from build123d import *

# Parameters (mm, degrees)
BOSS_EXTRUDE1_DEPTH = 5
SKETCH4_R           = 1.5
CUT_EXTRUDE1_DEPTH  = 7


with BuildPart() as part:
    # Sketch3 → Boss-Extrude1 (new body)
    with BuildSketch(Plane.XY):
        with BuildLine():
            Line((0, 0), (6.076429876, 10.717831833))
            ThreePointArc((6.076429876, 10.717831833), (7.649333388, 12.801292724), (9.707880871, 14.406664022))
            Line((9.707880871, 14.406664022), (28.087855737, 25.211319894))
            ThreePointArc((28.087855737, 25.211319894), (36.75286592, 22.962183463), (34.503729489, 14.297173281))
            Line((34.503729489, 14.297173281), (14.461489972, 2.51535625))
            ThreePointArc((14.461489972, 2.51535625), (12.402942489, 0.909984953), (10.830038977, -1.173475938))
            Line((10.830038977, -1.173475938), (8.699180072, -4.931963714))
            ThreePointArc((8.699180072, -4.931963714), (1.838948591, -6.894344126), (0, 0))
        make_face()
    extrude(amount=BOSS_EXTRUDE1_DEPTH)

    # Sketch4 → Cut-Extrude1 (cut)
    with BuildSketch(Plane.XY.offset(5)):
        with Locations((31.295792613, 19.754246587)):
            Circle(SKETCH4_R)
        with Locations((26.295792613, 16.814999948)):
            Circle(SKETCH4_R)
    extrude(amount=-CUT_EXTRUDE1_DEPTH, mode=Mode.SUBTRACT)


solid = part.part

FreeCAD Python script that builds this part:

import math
import FreeCAD as App
import Part
import Sketcher

doc = App.newDocument("Part")
params = doc.addObject("Spreadsheet::Sheet", "Params")
for row, (alias, value) in enumerate([
    ("sketch1_radius", "10 mm"),
    ("pad1_length", "5 mm"),
    ("sketch2_diameter", "3 mm"),
    ("pocket1_length", "7 mm"),
], start=1):
    params.set(f"A{row}", alias)
    params.set(f"B{row}", "=" + value)
    params.setAlias(f"B{row}", alias)

body = doc.addObject("PartDesign::Body", "Body")

# Sketch on XY plane
sketch1 = body.newObject("Sketcher::SketchObject", "Sketch")
sketch1.AttachmentSupport = (doc.getObject("XY_Plane"), [""])
sketch1.MapMode = "FlatFace"
sketch1.addGeometry(Part.LineSegment(App.Vector(6.1, 10.7, 0), App.Vector(0, 0, 0)), False)
sketch1.addGeometry(Part.ArcOfCircle(Part.Circle(App.Vector(4.3, -2.5, 0), App.Vector(0, 0, 1), 5), math.radians(149), math.radians(331)), False)
sketch1.addGeometry(Part.LineSegment(App.Vector(8.7, -4.9, 0), App.Vector(10.8, -1.2, 0)), False)
sketch1.addGeometry(Part.ArcOfCircle(Part.Circle(App.Vector(19.5, -6.1, 0), App.Vector(0, 0, 1), 10), math.radians(120), math.radians(150)), False)
sketch1.addGeometry(Part.LineSegment(App.Vector(14.5, 2.5, 0), App.Vector(34.5, 14.3, 0)), False)
sketch1.addGeometry(Part.ArcOfCircle(Part.Circle(App.Vector(31.3, 19.8, 0), App.Vector(0, 0, 1), 6.3), math.radians(-60), math.radians(120)), False)
sketch1.addGeometry(Part.LineSegment(App.Vector(28.1, 25.2, 0), App.Vector(9.7, 14.4, 0)), False)
sketch1.addGeometry(Part.ArcOfCircle(Part.Circle(App.Vector(14.8, 5.8, 0), App.Vector(0, 0, 1), 10), math.radians(120), math.radians(150)), False)
sketch1.addConstraint(Sketcher.Constraint("Coincident", 0, 2, 1, 1))
sketch1.addConstraint(Sketcher.Constraint("Coincident", 1, 2, 2, 1))
sketch1.addConstraint(Sketcher.Constraint("Tangent", 2, 2, 3, 2))
sketch1.addConstraint(Sketcher.Constraint("Tangent", 3, 1, 4, 1))
sketch1.addConstraint(Sketcher.Constraint("Tangent", 4, 2, 5, 1))
sketch1.addConstraint(Sketcher.Constraint("Tangent", 5, 2, 6, 1))
sketch1.addConstraint(Sketcher.Constraint("Tangent", 6, 2, 7, 1))
sketch1.addConstraint(Sketcher.Constraint("Tangent", 7, 2, 0, 1))
sketch1.addConstraint(Sketcher.Constraint("Coincident", 0, 2, -1, 1))
sketch1.addConstraint(Sketcher.Constraint("Equal", 3, 7))
sketch1.addConstraint(Sketcher.Constraint("Parallel", 0, 2))
sketch1.addConstraint(Sketcher.Constraint("Parallel", 4, 6))
sketch1.addConstraint(Sketcher.Constraint("Radius", 3, 10.0))
sketch1.addConstraint(Sketcher.Constraint("Radius", 1, 5.000805))
sketch1.addConstraint(Sketcher.Constraint("Radius", 5, 6.330127))
sketch1.addConstraint(Sketcher.Constraint("DistanceY", 1, 3, 5, 3, 22.2983))
sketch1.addConstraint(Sketcher.Constraint("Distance", 0, 12.320508))
sketch1.addConstraint(Sketcher.Constraint("Distance", 2, 4.320508))
sketch1.addConstraint(Sketcher.Constraint("Distance", 4, 23.248711))
sketch1.addConstraint(Sketcher.Constraint("Distance", 6, 21.320508))
sketch1.addConstraint(Sketcher.Constraint("DistanceX", -1, 1, 3, 3, 19.529219))
sketch1.setExpression("Constraints[12]", "Params.sketch1_radius")
pad1 = body.newObject("PartDesign::Pad", "Pad")
pad1.Profile = sketch1
pad1.setExpression("Length", "Params.pad1_length")

# Sketch on XY plane
sketch2 = body.newObject("Sketcher::SketchObject", "Sketch001")
sketch2.AttachmentSupport = (doc.getObject("XY_Plane"), [""])
sketch2.MapMode = "FlatFace"
sketch2.AttachmentOffset = App.Placement(App.Vector(0, 0, 5), App.Rotation())
sketch2.addGeometry(Part.Circle(App.Vector(31.3, 19.8, 0), App.Vector(0, 0, 1), 1.5), False)
sketch2.addGeometry(Part.Circle(App.Vector(26.3, 16.8, 0), App.Vector(0, 0, 1), 1.5), False)
sketch2.addConstraint(Sketcher.Constraint("Equal", 0, 1))
sketch2.addConstraint(Sketcher.Constraint("Diameter", 0, 3.0))
sketch2.addConstraint(Sketcher.Constraint("DistanceX", 1, 3, 0, 3, 5.0))
sketch2.addConstraint(Sketcher.Constraint("DistanceY", -1, 1, 1, 3, 16.815))
sketch2.addConstraint(Sketcher.Constraint("DistanceX", -1, 1, 0, 3, 31.295793))
sketch2.addConstraint(Sketcher.Constraint("DistanceY", -1, 1, 0, 3, 19.754247))
sketch2.setExpression("Constraints[1]", "Params.sketch2_diameter")
pocket1 = body.newObject("PartDesign::Pocket", "Pocket")
pocket1.Profile = sketch2
pocket1.setExpression("Length", "Params.pocket1_length")

doc.recompute()
